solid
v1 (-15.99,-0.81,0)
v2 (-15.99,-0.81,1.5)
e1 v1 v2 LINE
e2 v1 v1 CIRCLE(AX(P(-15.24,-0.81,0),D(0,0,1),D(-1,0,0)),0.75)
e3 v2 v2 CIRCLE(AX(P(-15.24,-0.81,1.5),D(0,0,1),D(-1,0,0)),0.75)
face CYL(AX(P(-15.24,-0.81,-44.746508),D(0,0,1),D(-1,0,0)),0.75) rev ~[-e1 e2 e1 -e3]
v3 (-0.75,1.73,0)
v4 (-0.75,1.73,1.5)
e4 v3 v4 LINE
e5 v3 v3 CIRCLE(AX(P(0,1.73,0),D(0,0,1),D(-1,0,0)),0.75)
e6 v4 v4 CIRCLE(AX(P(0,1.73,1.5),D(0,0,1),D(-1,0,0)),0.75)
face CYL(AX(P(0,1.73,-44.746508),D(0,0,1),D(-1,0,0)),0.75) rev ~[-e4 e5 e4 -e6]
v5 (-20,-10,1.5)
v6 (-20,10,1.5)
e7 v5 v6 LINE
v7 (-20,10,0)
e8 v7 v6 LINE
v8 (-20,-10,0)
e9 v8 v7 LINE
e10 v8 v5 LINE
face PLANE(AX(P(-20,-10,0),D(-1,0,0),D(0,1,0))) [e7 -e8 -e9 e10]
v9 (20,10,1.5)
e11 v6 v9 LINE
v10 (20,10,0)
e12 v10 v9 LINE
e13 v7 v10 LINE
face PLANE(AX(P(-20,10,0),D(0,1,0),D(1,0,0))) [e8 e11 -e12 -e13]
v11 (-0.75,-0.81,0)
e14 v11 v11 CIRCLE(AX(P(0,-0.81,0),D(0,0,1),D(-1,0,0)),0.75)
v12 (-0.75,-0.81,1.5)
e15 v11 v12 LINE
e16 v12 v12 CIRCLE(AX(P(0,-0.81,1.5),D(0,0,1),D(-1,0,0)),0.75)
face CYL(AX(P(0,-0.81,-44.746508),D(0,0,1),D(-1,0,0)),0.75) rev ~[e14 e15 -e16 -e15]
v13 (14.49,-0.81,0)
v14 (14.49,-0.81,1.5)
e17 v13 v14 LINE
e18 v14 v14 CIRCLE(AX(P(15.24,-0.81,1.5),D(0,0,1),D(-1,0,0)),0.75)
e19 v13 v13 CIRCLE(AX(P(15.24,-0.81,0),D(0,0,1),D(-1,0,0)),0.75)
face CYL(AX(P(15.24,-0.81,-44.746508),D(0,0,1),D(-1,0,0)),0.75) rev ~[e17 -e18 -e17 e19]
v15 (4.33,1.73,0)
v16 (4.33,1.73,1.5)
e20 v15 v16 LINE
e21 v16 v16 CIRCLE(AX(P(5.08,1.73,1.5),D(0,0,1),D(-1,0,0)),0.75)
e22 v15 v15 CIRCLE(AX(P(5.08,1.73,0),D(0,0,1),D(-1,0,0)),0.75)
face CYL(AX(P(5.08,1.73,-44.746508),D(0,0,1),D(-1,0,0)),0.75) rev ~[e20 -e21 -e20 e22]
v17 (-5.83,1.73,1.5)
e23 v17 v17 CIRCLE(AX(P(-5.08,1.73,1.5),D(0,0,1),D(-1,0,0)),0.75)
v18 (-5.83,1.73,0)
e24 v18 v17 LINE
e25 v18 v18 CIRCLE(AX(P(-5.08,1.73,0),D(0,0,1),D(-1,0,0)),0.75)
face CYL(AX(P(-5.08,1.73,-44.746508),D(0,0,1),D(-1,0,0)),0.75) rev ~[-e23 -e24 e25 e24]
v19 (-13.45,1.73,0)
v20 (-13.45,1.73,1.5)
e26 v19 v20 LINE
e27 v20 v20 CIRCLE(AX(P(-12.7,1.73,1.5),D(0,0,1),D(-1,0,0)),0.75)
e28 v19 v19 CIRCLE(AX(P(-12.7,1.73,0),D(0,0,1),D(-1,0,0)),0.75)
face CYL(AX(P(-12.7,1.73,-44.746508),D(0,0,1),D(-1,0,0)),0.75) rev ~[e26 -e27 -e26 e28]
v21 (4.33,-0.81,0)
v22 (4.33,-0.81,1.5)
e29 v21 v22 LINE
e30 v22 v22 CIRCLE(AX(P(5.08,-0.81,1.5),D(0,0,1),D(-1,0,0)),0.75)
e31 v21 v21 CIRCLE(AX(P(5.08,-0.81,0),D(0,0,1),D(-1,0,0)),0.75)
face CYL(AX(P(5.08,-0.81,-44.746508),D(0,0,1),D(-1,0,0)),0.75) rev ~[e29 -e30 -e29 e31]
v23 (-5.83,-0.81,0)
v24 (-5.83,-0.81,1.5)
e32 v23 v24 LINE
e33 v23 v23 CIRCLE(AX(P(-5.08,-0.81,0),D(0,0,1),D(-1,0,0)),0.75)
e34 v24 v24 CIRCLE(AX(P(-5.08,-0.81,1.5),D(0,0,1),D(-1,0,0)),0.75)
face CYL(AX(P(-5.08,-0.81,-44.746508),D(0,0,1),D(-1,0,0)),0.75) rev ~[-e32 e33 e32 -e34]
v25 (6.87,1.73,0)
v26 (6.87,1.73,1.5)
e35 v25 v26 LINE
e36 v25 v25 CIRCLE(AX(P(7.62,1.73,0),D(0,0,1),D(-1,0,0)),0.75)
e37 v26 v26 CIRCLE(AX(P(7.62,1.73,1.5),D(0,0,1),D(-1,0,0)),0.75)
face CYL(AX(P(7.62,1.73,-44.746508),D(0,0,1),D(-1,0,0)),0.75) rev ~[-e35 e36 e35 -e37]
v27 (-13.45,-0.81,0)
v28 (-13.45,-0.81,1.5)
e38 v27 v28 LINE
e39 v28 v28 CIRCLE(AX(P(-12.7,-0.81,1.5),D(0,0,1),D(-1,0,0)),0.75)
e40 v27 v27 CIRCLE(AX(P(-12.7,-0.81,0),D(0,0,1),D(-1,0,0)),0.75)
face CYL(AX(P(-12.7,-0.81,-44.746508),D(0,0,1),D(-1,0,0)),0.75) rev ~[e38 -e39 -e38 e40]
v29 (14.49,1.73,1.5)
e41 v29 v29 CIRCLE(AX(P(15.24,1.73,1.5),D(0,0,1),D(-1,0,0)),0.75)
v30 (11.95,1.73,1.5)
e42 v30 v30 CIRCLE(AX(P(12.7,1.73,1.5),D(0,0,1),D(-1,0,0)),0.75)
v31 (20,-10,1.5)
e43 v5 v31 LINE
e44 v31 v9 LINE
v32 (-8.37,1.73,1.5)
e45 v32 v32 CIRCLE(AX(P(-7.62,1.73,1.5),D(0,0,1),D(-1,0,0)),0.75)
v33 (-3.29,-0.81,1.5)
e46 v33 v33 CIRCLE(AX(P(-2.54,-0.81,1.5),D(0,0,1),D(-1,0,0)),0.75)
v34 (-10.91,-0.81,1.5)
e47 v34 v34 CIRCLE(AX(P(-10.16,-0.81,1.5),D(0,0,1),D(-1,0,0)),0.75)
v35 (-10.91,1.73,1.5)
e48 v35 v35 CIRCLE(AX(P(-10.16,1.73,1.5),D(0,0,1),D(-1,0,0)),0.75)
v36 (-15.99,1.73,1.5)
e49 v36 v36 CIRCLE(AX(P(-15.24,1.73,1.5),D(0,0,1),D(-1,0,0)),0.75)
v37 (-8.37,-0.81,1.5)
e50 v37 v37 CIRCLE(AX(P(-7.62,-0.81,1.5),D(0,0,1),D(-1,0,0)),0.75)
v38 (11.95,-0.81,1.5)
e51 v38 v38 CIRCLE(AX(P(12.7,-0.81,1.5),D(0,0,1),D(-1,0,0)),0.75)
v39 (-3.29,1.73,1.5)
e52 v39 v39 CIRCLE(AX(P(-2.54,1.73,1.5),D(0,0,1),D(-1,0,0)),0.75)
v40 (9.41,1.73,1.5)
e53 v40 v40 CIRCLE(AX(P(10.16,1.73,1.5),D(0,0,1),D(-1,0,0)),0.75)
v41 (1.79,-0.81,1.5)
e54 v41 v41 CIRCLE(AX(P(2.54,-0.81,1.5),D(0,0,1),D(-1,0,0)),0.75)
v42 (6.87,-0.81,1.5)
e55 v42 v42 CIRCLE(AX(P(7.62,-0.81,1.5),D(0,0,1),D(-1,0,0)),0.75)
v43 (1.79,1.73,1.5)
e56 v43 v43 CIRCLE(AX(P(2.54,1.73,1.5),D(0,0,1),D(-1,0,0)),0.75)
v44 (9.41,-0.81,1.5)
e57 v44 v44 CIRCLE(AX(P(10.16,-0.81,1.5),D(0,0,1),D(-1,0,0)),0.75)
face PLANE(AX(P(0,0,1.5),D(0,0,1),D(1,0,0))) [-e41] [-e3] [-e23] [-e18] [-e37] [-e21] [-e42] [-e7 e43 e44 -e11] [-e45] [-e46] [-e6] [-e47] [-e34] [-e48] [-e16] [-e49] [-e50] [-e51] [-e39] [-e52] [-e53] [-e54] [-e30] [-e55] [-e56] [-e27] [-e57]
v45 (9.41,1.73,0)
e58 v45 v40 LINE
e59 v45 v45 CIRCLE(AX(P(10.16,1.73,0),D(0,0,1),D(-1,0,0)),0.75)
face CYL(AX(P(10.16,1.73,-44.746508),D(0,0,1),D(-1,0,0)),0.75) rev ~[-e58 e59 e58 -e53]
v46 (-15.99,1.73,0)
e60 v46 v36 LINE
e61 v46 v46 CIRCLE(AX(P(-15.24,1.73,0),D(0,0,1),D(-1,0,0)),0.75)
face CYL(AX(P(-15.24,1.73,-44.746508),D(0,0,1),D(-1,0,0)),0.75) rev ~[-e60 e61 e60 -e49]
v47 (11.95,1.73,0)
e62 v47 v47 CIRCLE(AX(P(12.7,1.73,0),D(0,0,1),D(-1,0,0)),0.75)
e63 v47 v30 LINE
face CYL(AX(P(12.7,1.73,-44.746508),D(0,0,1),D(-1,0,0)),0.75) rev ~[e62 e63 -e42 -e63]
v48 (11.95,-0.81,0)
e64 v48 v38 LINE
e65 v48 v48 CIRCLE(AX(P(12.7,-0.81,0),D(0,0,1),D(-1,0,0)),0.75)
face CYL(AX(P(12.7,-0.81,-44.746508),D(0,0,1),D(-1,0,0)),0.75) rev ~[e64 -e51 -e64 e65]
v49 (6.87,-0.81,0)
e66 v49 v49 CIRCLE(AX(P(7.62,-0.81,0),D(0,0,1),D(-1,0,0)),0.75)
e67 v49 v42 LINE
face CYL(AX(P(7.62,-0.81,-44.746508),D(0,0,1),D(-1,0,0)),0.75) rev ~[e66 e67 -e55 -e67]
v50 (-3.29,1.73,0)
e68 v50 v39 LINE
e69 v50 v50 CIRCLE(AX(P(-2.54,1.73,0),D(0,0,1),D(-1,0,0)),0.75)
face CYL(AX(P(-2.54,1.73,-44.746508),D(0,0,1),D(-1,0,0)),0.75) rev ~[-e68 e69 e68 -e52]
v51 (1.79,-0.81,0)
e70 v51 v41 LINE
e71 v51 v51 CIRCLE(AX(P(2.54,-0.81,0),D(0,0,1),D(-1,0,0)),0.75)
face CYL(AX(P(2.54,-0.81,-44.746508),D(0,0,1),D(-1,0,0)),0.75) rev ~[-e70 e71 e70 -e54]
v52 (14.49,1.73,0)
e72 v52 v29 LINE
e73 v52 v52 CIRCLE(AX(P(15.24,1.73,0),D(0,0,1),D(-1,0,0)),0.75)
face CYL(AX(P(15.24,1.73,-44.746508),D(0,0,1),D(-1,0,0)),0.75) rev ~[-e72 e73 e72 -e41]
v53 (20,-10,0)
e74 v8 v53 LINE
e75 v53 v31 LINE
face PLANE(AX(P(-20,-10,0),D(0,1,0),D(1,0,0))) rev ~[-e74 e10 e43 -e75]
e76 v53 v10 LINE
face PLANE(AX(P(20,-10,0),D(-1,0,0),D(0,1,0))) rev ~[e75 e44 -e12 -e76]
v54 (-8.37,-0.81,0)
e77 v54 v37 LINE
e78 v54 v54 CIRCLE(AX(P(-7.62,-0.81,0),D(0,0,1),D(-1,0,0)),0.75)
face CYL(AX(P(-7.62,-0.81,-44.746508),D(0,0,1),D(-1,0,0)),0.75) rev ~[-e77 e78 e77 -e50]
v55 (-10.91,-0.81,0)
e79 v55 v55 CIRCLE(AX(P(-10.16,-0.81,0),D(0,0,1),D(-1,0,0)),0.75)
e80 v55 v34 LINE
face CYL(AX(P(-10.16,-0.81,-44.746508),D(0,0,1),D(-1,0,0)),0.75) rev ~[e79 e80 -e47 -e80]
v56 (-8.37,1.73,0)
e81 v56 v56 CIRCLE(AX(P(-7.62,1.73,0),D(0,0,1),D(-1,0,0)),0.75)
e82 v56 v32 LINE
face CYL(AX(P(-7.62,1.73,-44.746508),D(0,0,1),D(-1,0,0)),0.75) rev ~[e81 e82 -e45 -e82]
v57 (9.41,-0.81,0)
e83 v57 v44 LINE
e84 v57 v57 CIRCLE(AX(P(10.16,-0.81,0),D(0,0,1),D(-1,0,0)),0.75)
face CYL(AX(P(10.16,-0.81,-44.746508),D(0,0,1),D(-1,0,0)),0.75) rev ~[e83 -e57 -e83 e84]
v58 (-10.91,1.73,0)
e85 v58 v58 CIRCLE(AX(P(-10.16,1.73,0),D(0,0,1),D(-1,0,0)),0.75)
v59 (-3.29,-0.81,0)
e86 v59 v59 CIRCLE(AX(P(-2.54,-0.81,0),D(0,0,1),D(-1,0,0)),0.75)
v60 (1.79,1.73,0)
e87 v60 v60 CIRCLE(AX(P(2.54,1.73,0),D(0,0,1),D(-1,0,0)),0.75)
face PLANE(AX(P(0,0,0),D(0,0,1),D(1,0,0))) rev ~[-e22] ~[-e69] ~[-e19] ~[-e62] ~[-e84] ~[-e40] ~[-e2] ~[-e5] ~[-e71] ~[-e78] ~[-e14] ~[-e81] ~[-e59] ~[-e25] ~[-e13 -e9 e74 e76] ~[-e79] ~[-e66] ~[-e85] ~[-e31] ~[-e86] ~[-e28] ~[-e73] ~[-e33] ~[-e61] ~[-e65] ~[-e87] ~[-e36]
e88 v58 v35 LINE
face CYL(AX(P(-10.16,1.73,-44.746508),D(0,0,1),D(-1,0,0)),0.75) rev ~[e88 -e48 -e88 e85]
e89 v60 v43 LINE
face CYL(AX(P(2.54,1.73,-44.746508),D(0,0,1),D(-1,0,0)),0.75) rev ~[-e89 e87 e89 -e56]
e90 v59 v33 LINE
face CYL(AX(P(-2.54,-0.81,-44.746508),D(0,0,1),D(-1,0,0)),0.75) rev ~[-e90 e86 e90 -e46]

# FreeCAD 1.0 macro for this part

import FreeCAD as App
import Part
import Sketcher
from FreeCAD import Vector

doc = App.newDocument("Part")
params = doc.addObject("Spreadsheet::Sheet", "Params")
for row, (alias, value) in enumerate([
    ("sketch1_width", "40 mm"),
    ("sketch1_height", "20 mm"),
    ("pad1_length", "1.5 mm"),
    ("sketch2_diameter", "1.5 mm"),
    ("hole_diameter", "1.5 mm"),
], start=1):
    params.set(f"A{row}", alias)
    params.set(f"B{row}", "=" + value)
    params.setAlias(f"B{row}", alias)

body = doc.addObject("PartDesign::Body", "Body")

sketch1 = body.newObject("Sketcher::SketchObject", "Sketch")
sketch1.AttachmentSupport = (doc.getObject("XY_Plane"), [""])
sketch1.MapMode = "FlatFace"
sketch1.addGeometry([
    Part.LineSegment(Vector(-20, 10, 0), Vector(-20, -10, 0)),
    Part.LineSegment(Vector(-20, -10, 0), Vector(20, -10, 0)),
    Part.LineSegment(Vector(20, -10, 0), Vector(20, 10, 0)),
    Part.LineSegment(Vector(20, 10, 0), Vector(-20, 10, 0)),
], False)
sketch1.addConstraint([
    Sketcher.Constraint("Coincident", 0, 2, 1, 1),
    Sketcher.Constraint("Coincident", 1, 2, 2, 1),
    Sketcher.Constraint("Coincident", 2, 2, 3, 1),
    Sketcher.Constraint("Coincident", 3, 2, 0, 1),
    Sketcher.Constraint("Vertical", 0),
    Sketcher.Constraint("Horizontal", 1),
    Sketcher.Constraint("Vertical", 2),
    Sketcher.Constraint("Horizontal", 3),
    Sketcher.Constraint("Symmetric", 0, 2, 2, 2, -1, 1),
    Sketcher.Constraint("DistanceX", 1, 1, 1, 2, 40.0),
    Sketcher.Constraint("DistanceY", 0, 2, 0, 1, 20.0),
])
sketch1.setExpression("Constraints[9]", "Params.sketch1_width")
sketch1.setExpression("Constraints[10]", "Params.sketch1_height")
pad1 = body.newObject("PartDesign::Pad", "Pad")
pad1.Profile = sketch1
pad1.setExpression("Length", "Params.pad1_length")

sketch2 = body.newObject("Sketcher::SketchObject", "Sketch001")
sketch2.AttachmentSupport = (doc.getObject("XY_Plane"), [""])
sketch2.MapMode = "FlatFace"
sketch2.addGeometry([
    Part.Circle(Vector(12.7, 1.7, 0), Vector(0, 0, 1), 0.8),
    Part.Circle(Vector(12.7, -0.8, 0), Vector(0, 0, 1), 0.8),
    Part.Circle(Vector(15.2, -0.8, 0), Vector(0, 0, 1), 0.8),
    Part.Circle(Vector(15.2, 1.7, 0), Vector(0, 0, 1), 0.8),
    Part.Circle(Vector(10.2, 1.7, 0), Vector(0, 0, 1), 0.8),
    Part.Circle(Vector(10.2, -0.8, 0), Vector(0, 0, 1), 0.8),
    Part.Circle(Vector(7.6, -0.8, 0), Vector(0, 0, 1), 0.8),
    Part.Circle(Vector(7.6, 1.7, 0), Vector(0, 0, 1), 0.8),
    Part.Circle(Vector(5.1, 1.7, 0), Vector(0, 0, 1), 0.8),
    Part.Circle(Vector(5.1, -0.8, 0), Vector(0, 0, 1), 0.8),
    Part.Circle(Vector(2.5, -0.8, 0), Vector(0, 0, 1), 0.8),
    Part.Circle(Vector(2.5, 1.7, 0), Vector(0, 0, 1), 0.8),
    Part.Circle(Vector(0, 1.7, 0), Vector(0, 0, 1), 0.8),
    Part.Circle(Vector(0, -0.8, 0), Vector(0, 0, 1), 0.8),
    Part.Circle(Vector(-2.5, -0.8, 0), Vector(0, 0, 1), 0.8),
    Part.Circle(Vector(-2.5, 1.7, 0), Vector(0, 0, 1), 0.8),
    Part.Circle(Vector(-5.1, 1.7, 0), Vector(0, 0, 1), 0.8),
    Part.Circle(Vector(-5.1, -0.8, 0), Vector(0, 0, 1), 0.8),
    Part.Circle(Vector(-7.6, -0.8, 0), Vector(0, 0, 1), 0.8),
    Part.Circle(Vector(-7.6, 1.7, 0), Vector(0, 0, 1), 0.8),
    Part.Circle(Vector(-10.2, 1.7, 0), Vector(0, 0, 1), 0.8),
    Part.Circle(Vector(-10.2, -0.8, 0), Vector(0, 0, 1), 0.8),
    Part.Circle(Vector(-12.7, -0.8, 0), Vector(0, 0, 1), 0.8),
    Part.Circle(Vector(-12.7, 1.7, 0), Vector(0, 0, 1), 0.8),
    Part.Circle(Vector(-15.2, 1.7, 0), Vector(0, 0, 1), 0.8),
    Part.Circle(Vector(-15.2, -0.8, 0), Vector(0, 0, 1), 0.8),
], False)
sketch2.addConstraint([
    Sketcher.Constraint("Equal", 0, 1),
    Sketcher.Constraint("Equal", 1, 2),
    Sketcher.Constraint("Equal", 2, 3),
    Sketcher.Constraint("Equal", 3, 4),
    Sketcher.Constraint("Equal", 4, 5),
    Sketcher.Constraint("Equal", 5, 6),
    Sketcher.Constraint("Equal", 6, 7),
    Sketcher.Constraint("Equal", 7, 8),
    Sketcher.Constraint("Equal", 8, 9),
    Sketcher.Constraint("Equal", 9, 10),
    Sketcher.Constraint("Equal", 10, 11),
    Sketcher.Constraint("Equal", 11, 12),
    Sketcher.Constraint("Equal", 12, 13),
    Sketcher.Constraint("Equal", 13, 14),
    Sketcher.Constraint("Equal", 14, 15),
    Sketcher.Constraint("Equal", 15, 16),
    Sketcher.Constraint("Equal", 16, 17),
    Sketcher.Constraint("Equal", 17, 18),
    Sketcher.Constraint("Equal", 18, 19),
    Sketcher.Constraint("Equal", 19, 20),
    Sketcher.Constraint("Equal", 20, 21),
    Sketcher.Constraint("Equal", 21, 22),
    Sketcher.Constraint("Equal", 22, 23),
    Sketcher.Constraint("Equal", 23, 24),
    Sketcher.Constraint("Equal", 24, 25),
    Sketcher.Constraint("Symmetric", 10, 3, 14, 3, -2),
    Sketcher.Constraint("Symmetric", 11, 3, 15, 3, -2),
    Sketcher.Constraint("Symmetric", 8, 3, 16, 3, -2),
    Sketcher.Constraint("Symmetric", 9, 3, 17, 3, -2),
    Sketcher.Constraint("Symmetric", 6, 3, 18, 3, -2),
    Sketcher.Constraint("Symmetric", 7, 3, 19, 3, -2),
    Sketcher.Constraint("Symmetric", 4, 3, 20, 3, -2),
    Sketcher.Constraint("Symmetric", 5, 3, 21, 3, -2),
    Sketcher.Constraint("Symmetric", 1, 3, 22, 3, -2),
    Sketcher.Constraint("Symmetric", 0, 3, 23, 3, -2),
    Sketcher.Constraint("Symmetric", 3, 3, 24, 3, -2),
    Sketcher.Constraint("Symmetric", 2, 3, 25, 3, -2),
    Sketcher.Constraint("PointOnObject", 12, 3, -2),
    Sketcher.Constraint("PointOnObject", 13, 3, -2),
    Sketcher.Constraint("Horizontal", 1, 3, 2, 3),
    Sketcher.Constraint("Horizontal", 0, 3, 3, 3),
    Sketcher.Constraint("Horizontal", 3, 3, 4, 3),
    Sketcher.Constraint("Horizontal", 2, 3, 5, 3),
    Sketcher.Constraint("Horizontal", 5, 3, 6, 3),
    Sketcher.Constraint("Horizontal", 4, 3, 7, 3),
    Sketcher.Constraint("Horizontal", 7, 3, 8, 3),
    Sketcher.Constraint("Horizontal", 6, 3, 9, 3),
    Sketcher.Constraint("Horizontal", 9, 3, 10, 3),
    Sketcher.Constraint("Horizontal", 8, 3, 11, 3),
    Sketcher.Constraint("Horizontal", 11, 3, 12, 3),
    Sketcher.Constraint("Horizontal", 10, 3, 13, 3),
    Sketcher.Constraint("Vertical", 0, 3, 1, 3),
    Sketcher.Constraint("Vertical", 2, 3, 3, 3),
    Sketcher.Constraint("Vertical", 4, 3, 5, 3),
    Sketcher.Constraint("Vertical", 6, 3, 7, 3),
    Sketcher.Constraint("Vertical", 8, 3, 9, 3),
    Sketcher.Constraint("Vertical", 10, 3, 11, 3),
    Sketcher.Constraint("Diameter", 0, 1.5),
    Sketcher.Constraint("DistanceX", -1, 1, 0, 3, 12.7),
    Sketcher.Constraint("DistanceY", -1, 1, 0, 3, 1.73),
    Sketcher.Constraint("DistanceY", 1, 3, -1, 1, 0.81),
    Sketcher.Constraint("DistanceX", -1, 1, 2, 3, 15.24),
    Sketcher.Constraint("DistanceX", -1, 1, 4, 3, 10.16),
    Sketcher.Constraint("DistanceX", -1, 1, 6, 3, 7.62),
    Sketcher.Constraint("DistanceX", -1, 1, 8, 3, 5.08),
    Sketcher.Constraint("DistanceX", -1, 1, 10, 3, 2.54),
])
sketch2.setExpression("Constraints[57]", "Params.sketch2_diameter")
doc.recompute()
hole = body.newObject("PartDesign::Hole", "Hole")
hole.Profile = sketch2
hole.ThreadType = "None"
hole.setExpression("Diameter", "Params.hole_diameter")
hole.DepthType = "ThroughAll"
hole.Reversed = True

doc.recompute()
